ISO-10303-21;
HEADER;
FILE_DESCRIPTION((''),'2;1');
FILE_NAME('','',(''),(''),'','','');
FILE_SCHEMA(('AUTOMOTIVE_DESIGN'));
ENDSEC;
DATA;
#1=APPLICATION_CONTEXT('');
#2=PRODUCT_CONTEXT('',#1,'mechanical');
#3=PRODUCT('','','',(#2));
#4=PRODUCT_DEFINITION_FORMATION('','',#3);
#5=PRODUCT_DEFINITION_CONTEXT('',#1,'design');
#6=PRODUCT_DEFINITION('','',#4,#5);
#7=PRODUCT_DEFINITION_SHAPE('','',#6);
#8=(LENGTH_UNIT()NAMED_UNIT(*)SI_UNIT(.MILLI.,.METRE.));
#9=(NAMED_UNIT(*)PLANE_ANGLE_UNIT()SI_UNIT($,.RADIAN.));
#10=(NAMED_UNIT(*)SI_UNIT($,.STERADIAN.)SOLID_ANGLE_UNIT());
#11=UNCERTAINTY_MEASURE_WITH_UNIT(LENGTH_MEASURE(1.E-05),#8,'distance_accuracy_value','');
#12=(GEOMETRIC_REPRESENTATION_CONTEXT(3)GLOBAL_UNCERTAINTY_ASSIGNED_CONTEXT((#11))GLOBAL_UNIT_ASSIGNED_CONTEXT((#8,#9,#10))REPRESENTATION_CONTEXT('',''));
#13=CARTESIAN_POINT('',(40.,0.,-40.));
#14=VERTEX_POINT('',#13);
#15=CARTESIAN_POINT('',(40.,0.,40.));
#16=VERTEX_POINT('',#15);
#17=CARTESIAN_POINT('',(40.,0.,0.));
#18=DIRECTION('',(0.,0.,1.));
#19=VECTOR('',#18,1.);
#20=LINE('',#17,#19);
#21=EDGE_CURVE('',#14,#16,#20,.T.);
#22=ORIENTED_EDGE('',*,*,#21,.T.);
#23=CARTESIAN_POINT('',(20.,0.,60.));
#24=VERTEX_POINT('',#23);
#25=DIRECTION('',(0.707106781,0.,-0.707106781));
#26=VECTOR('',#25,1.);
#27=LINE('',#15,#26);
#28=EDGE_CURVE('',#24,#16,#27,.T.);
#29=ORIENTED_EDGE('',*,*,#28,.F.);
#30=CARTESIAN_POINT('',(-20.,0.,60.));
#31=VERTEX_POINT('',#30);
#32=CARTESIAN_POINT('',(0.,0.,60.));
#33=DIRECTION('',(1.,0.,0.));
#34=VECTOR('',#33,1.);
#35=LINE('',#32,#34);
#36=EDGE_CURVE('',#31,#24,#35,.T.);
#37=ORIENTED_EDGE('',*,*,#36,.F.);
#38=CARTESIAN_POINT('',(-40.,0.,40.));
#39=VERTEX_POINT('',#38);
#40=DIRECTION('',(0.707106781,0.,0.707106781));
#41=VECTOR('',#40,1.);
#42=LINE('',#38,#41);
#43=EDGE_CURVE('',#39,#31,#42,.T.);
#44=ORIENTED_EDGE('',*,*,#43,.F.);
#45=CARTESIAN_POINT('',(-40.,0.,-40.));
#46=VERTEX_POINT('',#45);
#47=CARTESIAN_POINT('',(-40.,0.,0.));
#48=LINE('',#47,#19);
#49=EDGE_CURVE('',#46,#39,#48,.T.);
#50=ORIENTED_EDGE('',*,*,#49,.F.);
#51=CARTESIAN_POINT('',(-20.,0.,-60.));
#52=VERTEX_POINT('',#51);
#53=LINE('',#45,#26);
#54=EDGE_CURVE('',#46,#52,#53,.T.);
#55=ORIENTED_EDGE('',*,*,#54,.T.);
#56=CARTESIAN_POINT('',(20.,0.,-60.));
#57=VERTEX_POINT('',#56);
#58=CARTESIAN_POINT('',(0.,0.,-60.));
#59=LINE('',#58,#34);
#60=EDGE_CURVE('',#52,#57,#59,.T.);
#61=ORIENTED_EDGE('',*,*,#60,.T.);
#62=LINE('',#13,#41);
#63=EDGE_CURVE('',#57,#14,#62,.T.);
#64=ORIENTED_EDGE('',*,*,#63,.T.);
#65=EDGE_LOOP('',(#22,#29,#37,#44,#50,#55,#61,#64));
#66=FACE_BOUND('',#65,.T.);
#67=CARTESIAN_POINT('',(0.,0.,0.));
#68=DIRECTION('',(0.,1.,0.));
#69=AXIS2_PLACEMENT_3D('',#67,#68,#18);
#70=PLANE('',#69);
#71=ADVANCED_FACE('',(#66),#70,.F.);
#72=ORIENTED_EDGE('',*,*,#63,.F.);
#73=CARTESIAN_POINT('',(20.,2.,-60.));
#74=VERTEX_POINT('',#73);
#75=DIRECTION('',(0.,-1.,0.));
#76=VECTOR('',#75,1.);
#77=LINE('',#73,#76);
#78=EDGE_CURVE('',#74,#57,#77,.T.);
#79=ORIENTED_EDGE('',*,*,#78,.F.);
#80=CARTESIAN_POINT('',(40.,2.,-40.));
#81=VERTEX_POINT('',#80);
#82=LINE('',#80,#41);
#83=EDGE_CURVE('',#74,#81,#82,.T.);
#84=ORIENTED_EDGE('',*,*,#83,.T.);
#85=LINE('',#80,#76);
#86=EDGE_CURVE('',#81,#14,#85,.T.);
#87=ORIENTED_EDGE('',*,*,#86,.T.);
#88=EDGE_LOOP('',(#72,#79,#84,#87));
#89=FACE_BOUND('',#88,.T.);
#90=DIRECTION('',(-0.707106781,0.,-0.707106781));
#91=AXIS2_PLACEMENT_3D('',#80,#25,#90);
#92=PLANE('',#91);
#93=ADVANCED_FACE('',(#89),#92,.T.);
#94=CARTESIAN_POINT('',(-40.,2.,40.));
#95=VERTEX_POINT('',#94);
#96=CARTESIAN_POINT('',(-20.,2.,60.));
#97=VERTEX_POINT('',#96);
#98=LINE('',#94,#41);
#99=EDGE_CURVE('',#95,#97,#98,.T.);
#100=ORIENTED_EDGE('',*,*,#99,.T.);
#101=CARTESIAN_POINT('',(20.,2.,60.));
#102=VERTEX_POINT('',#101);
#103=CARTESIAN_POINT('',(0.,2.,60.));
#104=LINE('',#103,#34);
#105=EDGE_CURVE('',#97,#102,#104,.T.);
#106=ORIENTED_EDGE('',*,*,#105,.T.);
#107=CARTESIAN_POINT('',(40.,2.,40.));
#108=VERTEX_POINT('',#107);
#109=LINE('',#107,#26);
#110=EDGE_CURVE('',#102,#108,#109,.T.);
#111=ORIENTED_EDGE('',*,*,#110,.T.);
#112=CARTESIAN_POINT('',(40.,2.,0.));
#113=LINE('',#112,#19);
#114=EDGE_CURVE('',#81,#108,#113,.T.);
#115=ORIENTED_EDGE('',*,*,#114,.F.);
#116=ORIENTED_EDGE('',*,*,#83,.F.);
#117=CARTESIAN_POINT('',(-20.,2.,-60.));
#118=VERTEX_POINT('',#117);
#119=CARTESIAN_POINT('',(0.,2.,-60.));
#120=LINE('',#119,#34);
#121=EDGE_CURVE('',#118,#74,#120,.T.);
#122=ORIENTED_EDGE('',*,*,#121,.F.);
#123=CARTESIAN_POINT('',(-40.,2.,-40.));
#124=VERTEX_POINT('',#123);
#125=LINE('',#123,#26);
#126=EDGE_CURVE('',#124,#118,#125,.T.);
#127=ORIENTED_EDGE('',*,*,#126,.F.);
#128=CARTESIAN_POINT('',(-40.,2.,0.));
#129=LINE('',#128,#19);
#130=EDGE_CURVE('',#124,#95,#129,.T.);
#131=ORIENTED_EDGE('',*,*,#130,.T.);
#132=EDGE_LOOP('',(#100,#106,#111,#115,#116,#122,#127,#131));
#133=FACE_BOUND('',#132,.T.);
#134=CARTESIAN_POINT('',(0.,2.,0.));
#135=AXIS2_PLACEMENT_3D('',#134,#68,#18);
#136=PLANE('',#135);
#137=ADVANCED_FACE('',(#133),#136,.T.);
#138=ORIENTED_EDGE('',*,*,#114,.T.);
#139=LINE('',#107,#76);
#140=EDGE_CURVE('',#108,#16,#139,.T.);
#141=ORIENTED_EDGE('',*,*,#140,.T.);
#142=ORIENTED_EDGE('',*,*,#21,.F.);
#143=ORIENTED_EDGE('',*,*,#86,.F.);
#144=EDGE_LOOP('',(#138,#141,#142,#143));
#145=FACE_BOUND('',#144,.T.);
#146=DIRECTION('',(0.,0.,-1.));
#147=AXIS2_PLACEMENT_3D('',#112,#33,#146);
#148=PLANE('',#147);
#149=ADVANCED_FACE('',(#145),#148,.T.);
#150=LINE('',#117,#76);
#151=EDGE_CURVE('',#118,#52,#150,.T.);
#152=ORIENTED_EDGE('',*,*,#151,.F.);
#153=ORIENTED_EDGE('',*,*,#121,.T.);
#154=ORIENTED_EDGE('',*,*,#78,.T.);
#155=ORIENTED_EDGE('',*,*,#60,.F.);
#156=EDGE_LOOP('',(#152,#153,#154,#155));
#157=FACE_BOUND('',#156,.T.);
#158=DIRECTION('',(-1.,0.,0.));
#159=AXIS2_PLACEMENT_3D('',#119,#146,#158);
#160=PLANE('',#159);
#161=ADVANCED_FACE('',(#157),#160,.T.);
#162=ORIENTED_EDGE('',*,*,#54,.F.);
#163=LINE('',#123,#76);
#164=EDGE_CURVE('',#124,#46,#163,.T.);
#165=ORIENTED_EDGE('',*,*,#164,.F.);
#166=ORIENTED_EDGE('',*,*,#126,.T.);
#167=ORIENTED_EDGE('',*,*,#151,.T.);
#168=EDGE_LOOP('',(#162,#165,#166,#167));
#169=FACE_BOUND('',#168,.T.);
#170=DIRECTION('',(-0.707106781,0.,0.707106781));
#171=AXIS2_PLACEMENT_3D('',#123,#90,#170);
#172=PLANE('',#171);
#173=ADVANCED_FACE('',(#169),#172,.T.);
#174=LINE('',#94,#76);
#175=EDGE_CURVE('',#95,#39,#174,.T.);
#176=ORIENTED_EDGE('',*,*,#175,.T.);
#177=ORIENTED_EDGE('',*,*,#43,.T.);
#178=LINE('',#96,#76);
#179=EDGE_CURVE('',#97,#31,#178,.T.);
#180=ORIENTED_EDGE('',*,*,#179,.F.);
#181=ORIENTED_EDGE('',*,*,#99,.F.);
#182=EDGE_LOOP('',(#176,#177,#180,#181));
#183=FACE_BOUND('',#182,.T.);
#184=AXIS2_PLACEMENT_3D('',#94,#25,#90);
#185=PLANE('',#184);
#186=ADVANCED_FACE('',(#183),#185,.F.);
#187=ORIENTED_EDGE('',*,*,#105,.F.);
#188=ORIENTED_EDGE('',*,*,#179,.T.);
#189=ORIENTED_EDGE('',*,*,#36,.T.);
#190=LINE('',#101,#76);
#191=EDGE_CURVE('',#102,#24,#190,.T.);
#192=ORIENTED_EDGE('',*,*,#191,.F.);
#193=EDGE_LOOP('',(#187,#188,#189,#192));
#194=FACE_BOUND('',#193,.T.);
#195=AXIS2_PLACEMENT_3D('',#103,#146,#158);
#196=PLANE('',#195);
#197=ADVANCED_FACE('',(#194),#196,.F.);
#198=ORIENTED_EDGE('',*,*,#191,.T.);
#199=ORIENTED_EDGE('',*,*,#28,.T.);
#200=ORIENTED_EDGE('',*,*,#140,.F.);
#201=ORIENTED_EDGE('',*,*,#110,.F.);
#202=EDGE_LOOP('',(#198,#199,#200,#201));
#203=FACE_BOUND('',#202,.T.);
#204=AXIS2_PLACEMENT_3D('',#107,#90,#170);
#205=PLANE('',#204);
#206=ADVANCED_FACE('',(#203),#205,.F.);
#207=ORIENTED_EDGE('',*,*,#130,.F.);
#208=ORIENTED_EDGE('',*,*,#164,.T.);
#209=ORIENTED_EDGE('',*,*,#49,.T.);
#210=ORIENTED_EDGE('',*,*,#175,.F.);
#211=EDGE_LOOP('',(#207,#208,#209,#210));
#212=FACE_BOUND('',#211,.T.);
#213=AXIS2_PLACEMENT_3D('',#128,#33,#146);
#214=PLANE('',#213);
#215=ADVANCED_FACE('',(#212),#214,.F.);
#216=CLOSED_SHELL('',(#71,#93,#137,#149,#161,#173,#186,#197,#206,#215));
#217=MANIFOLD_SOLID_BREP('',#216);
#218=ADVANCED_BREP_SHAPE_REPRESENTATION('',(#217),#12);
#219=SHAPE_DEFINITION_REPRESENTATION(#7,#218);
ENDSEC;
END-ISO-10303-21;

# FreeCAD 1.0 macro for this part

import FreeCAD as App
import Part
import Sketcher

V = App.Vector
Q = App.Units.Quantity

doc = App.newDocument("Part")
body = doc.addObject("PartDesign::Body", "Body")

# Sketch on XZ plane
sketch1 = doc.addObject("Sketcher::SketchObject", "Sketch")
body.addObject(sketch1)
sketch1.AttachmentSupport = (doc.XZ_Plane, [""])
sketch1.MapMode = "FlatFace"
sketch1.addGeometry([
    Part.LineSegment(V(-40, -40, 0), V(-40, 40, 0)),  # 0
    Part.LineSegment(V(-40, 40, 0), V(-20, 60, 0)),  # 1
    Part.LineSegment(V(-20, 60, 0), V(20, 60, 0)),  # 2
    Part.LineSegment(V(20, 60, 0), V(40, 40, 0)),  # 3
    Part.LineSegment(V(40, 40, 0), V(40, -40, 0)),  # 4
    Part.LineSegment(V(40, -40, 0), V(20, -60, 0)),  # 5
    Part.LineSegment(V(20, -60, 0), V(-20, -60, 0)),  # 6
    Part.LineSegment(V(-20, -60, 0), V(-40, -40, 0)),  # 7
], False)
sketch1.addConstraint([
    Sketcher.Constraint("Coincident", 0, 2, 1, 1),
    Sketcher.Constraint("Coincident", 1, 2, 2, 1),
    Sketcher.Constraint("Coincident", 2, 2, 3, 1),
    Sketcher.Constraint("Coincident", 3, 2, 4, 1),
    Sketcher.Constraint("Coincident", 4, 2, 5, 1),
    Sketcher.Constraint("Coincident", 5, 2, 6, 1),
    Sketcher.Constraint("Coincident", 6, 2, 7, 1),
    Sketcher.Constraint("Coincident", 7, 2, 0, 1),
    Sketcher.Constraint("Vertical", 0),
    Sketcher.Constraint("Horizontal", 2),
    Sketcher.Constraint("Vertical", 4),
    Sketcher.Constraint("Horizontal", 6),
    Sketcher.Constraint("Symmetric", 0, 2, 4, 2, -1, 1),
    Sketcher.Constraint("Symmetric", 1, 2, 5, 2, -1, 1),
    Sketcher.Constraint("Perpendicular", 1, 3),
    Sketcher.Constraint("Perpendicular", 5, 7),
    Sketcher.Constraint("Horizontal", 0, 2, 3, 2),
    Sketcher.Constraint("Horizontal", 4, 2, 7, 2),
    Sketcher.Constraint("Vertical", 2, 2, 5, 2),
    Sketcher.Constraint("DistanceX", 2, 1, 2, 2, Q("40 mm")),
    Sketcher.Constraint("DistanceY", 0, 1, 0, 2, Q("80 mm")),
    Sketcher.Constraint("DistanceX", 0, 2, -1, 1, Q("40 mm")),
])
pad1 = doc.addObject("PartDesign::Pad", "Pad")
body.addObject(pad1)
pad1.Profile = sketch1
pad1.Length = 2
pad1.Reversed = True

doc.recompute()
